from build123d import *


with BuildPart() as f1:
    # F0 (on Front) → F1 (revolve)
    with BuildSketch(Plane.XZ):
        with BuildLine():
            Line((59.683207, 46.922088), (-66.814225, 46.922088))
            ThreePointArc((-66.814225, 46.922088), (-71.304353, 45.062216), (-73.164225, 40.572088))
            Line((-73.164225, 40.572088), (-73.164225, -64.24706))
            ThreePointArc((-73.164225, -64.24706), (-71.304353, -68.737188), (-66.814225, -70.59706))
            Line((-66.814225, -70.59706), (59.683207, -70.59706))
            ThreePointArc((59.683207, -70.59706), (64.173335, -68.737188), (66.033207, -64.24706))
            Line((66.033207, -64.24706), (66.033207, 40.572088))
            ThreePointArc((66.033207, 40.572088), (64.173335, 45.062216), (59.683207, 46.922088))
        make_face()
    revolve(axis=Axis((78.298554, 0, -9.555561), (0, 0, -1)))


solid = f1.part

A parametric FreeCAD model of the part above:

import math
import FreeCAD as App
import Part
import Sketcher
from FreeCAD import Vector
Q = App.Units.Quantity

doc = App.newDocument("Part")
body = doc.addObject("PartDesign::Body", "Body")

sketch1 = body.newObject("Sketcher::SketchObject", "Sketch")
sketch1.AttachmentSupport = (doc.getObject("XZ_Plane"), [""])
sketch1.MapMode = "FlatFace"
sketch1.addGeometry([
    Part.LineSegment(Vector(60, 47, 0), Vector(-67, 47, 0)),
    Part.ArcOfCircle(Part.Circle(Vector(-67, 41, 0), Vector(0, 0, 1), 6), math.radians(90), math.radians(180)),
    Part.LineSegment(Vector(-73, 41, 0), Vector(-73, -64, 0)),
    Part.ArcOfCircle(Part.Circle(Vector(-67, -64, 0), Vector(0, 0, 1), 6), math.radians(-180), math.radians(-90)),
    Part.LineSegment(Vector(-67, -71, 0), Vector(60, -71, 0)),
    Part.ArcOfCircle(Part.Circle(Vector(60, -64, 0), Vector(0, 0, 1), 6), math.radians(-90), math.radians(0)),
    Part.LineSegment(Vector(66, -64, 0), Vector(66, 41, 0)),
    Part.ArcOfCircle(Part.Circle(Vector(60, 41, 0), Vector(0, 0, 1), 6), math.radians(0), math.radians(90)),
], False)
sketch1.addGeometry(Part.LineSegment(Vector(78, 47, 0), Vector(78, -71, 0)), True)
sketch1.addConstraint([
    Sketcher.Constraint("Tangent", 0, 2, 1, 1),
    Sketcher.Constraint("Tangent", 1, 2, 2, 1),
    Sketcher.Constraint("Tangent", 2, 2, 3, 1),
    Sketcher.Constraint("Tangent", 3, 2, 4, 1),
    Sketcher.Constraint("Tangent", 4, 2, 5, 1),
    Sketcher.Constraint("Tangent", 5, 2, 6, 1),
    Sketcher.Constraint("Tangent", 6, 2, 7, 1),
    Sketcher.Constraint("Tangent", 7, 2, 0, 1),
    Sketcher.Constraint("Horizontal", 0),
    Sketcher.Constraint("Vertical", 2),
    Sketcher.Constraint("Horizontal", 4),
    Sketcher.Constraint("Vertical", 6),
    Sketcher.Constraint("Vertical", 8),
    Sketcher.Constraint("Equal", 1, 3),
    Sketcher.Constraint("Equal", 3, 5),
    Sketcher.Constraint("Equal", 5, 7),
    Sketcher.Constraint("Horizontal", 7, 2, 8, 1),
    Sketcher.Constraint("Horizontal", 4, 2, 8, 2),
    Sketcher.Constraint("Radius", 1, Q("0.25 in")),
    Sketcher.Constraint("DistanceY", 2, 2, 2, 1, Q("104.819148 mm")),
    Sketcher.Constraint("DistanceX", 0, 2, 0, 1, Q("126.497432 mm")),
    Sketcher.Constraint("DistanceY", 3, 3, -1, 1, Q("64.24706 mm")),
    Sketcher.Constraint("DistanceX", 1, 3, -1, 1, Q("66.814225 mm")),
    Sketcher.Constraint("DistanceX", -1, 1, 8, 1, Q("78.298554 mm")),
])
revolution = body.newObject("PartDesign::Revolution", "Revolution")
revolution.Profile = sketch1
revolution.ReferenceAxis = (sketch1, ["Axis0"])
revolution.Angle = 360

doc.recompute()
